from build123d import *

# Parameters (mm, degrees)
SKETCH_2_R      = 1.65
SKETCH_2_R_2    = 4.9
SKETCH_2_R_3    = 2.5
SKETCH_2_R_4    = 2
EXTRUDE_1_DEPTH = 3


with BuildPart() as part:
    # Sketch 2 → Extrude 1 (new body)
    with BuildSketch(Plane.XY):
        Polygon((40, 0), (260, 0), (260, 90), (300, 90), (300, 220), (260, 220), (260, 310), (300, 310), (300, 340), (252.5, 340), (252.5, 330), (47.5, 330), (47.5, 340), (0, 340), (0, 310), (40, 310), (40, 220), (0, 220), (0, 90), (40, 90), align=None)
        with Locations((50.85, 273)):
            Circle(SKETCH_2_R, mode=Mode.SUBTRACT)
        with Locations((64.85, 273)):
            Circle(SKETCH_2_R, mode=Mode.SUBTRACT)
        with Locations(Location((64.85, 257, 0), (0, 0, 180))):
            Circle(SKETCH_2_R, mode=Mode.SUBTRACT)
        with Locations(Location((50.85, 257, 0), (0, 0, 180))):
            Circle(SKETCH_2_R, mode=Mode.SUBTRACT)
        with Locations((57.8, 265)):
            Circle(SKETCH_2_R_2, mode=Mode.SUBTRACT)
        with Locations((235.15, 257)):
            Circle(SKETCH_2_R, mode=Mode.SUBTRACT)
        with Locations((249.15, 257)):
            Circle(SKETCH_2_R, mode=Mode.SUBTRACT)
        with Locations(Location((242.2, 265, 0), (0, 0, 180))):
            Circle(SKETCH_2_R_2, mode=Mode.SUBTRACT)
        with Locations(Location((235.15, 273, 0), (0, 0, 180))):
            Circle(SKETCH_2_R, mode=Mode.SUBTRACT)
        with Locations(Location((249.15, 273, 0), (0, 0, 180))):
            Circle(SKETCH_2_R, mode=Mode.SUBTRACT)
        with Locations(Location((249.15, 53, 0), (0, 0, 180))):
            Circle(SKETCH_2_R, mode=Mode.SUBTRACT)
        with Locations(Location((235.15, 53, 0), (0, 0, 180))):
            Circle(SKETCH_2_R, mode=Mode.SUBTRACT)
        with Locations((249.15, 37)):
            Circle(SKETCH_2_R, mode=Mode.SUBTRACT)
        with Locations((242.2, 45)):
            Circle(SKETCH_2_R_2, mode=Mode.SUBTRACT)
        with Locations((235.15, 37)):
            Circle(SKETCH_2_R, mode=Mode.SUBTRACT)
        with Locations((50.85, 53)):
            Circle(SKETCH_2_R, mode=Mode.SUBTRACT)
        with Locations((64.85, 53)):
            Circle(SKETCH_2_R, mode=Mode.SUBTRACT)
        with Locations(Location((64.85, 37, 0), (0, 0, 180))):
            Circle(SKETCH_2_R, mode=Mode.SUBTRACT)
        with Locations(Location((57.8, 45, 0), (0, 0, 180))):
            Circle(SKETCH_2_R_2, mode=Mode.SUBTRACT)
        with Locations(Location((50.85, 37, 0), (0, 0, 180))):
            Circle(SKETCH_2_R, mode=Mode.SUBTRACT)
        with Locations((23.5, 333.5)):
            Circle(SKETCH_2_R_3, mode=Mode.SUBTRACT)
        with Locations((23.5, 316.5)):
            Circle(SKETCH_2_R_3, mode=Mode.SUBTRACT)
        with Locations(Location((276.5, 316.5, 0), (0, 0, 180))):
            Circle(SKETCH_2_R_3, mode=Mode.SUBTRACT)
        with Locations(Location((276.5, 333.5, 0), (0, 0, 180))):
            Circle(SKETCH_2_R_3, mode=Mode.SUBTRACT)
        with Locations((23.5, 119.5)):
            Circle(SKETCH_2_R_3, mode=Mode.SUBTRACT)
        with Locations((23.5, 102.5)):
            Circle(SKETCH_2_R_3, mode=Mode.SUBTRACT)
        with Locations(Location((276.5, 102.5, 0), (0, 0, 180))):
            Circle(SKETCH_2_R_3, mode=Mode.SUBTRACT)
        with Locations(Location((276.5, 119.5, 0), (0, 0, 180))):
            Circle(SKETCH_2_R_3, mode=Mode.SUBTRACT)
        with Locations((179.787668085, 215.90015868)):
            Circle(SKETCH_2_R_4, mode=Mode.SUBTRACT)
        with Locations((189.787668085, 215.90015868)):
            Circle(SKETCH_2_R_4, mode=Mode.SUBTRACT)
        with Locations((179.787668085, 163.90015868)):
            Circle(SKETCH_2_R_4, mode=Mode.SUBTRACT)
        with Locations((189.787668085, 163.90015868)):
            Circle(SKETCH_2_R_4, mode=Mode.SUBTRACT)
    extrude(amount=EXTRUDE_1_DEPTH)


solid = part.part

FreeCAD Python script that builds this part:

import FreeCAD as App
import Part
import Sketcher
from FreeCAD import Vector

doc = App.newDocument("Part")
body = doc.addObject("PartDesign::Body", "Body")

# Sketch on XY plane
sketch1 = body.newObject("Sketcher::SketchObject", "Sketch")
sketch1.AttachmentSupport = (doc.getObject("XY_Plane"), [""])
sketch1.MapMode = "FlatFace"
sketch1.addGeometry(Part.LineSegment(Vector(40, 0, 0), Vector(260, 0, 0)), False)
sketch1.addGeometry(Part.LineSegment(Vector(260, 0, 0), Vector(260, 90, 0)), False)
sketch1.addGeometry(Part.LineSegment(Vector(260, 90, 0), Vector(300, 90, 0)), False)
sketch1.addGeometry(Part.LineSegment(Vector(300, 90, 0), Vector(300, 220, 0)), False)
sketch1.addGeometry(Part.LineSegment(Vector(300, 220, 0), Vector(260, 220, 0)), False)
sketch1.addGeometry(Part.LineSegment(Vector(260, 220, 0), Vector(260, 310, 0)), False)
sketch1.addGeometry(Part.LineSegment(Vector(260, 310, 0), Vector(300, 310, 0)), False)
sketch1.addGeometry(Part.LineSegment(Vector(300, 310, 0), Vector(300, 340, 0)), False)
sketch1.addGeometry(Part.LineSegment(Vector(300, 340, 0), Vector(252.5, 340, 0)), False)
sketch1.addGeometry(Part.LineSegment(Vector(252.5, 340, 0), Vector(252.5, 330, 0)), False)
sketch1.addGeometry(Part.LineSegment(Vector(252.5, 330, 0), Vector(47.5, 330, 0)), False)
sketch1.addGeometry(Part.LineSegment(Vector(47.5, 330, 0), Vector(47.5, 340, 0)), False)
sketch1.addGeometry(Part.LineSegment(Vector(47.5, 340, 0), Vector(0, 340, 0)), False)
sketch1.addGeometry(Part.LineSegment(Vector(0, 340, 0), Vector(0, 310, 0)), False)
sketch1.addGeometry(Part.LineSegment(Vector(0, 310, 0), Vector(40, 310, 0)), False)
sketch1.addGeometry(Part.LineSegment(Vector(40, 310, 0), Vector(40, 220, 0)), False)
sketch1.addGeometry(Part.LineSegment(Vector(40, 220, 0), Vector(0, 220, 0)), False)
sketch1.addGeometry(Part.LineSegment(Vector(0, 220, 0), Vector(0, 90, 0)), False)
sketch1.addGeometry(Part.LineSegment(Vector(0, 90, 0), Vector(40, 90, 0)), False)
sketch1.addGeometry(Part.LineSegment(Vector(40, 90, 0), Vector(40, 0, 0)), False)
sketch1.addGeometry(Part.Circle(Vector(50.85, 37, 0), Vector(0, 0, 1), 1.65), False)
sketch1.addGeometry(Part.Circle(Vector(50.85, 53, 0), Vector(0, 0, 1), 1.65), False)
sketch1.addGeometry(Part.Circle(Vector(64.85, 37, 0), Vector(0, 0, 1), 1.65), False)
sketch1.addGeometry(Part.Circle(Vector(57.8, 45, 0), Vector(0, 0, 1), 4.9), False)
sketch1.addGeometry(Part.Circle(Vector(64.85, 53, 0), Vector(0, 0, 1), 1.65), False)
sketch1.addGeometry(Part.Circle(Vector(23.5, 102.5, 0), Vector(0, 0, 1), 2.5), False)
sketch1.addGeometry(Part.Circle(Vector(23.5, 119.5, 0), Vector(0, 0, 1), 2.5), False)
sketch1.addGeometry(Part.Circle(Vector(235.15, 37, 0), Vector(0, 0, 1), 1.65), False)
sketch1.addGeometry(Part.Circle(Vector(235.15, 53, 0), Vector(0, 0, 1), 1.65), False)
sketch1.addGeometry(Part.Circle(Vector(242.2, 45, 0), Vector(0, 0, 1), 4.9), False)
sketch1.addGeometry(Part.Circle(Vector(249.15, 37, 0), Vector(0, 0, 1), 1.65), False)
sketch1.addGeometry(Part.Circle(Vector(249.15, 53, 0), Vector(0, 0, 1), 1.65), False)
sketch1.addGeometry(Part.Circle(Vector(276.5, 102.5, 0), Vector(0, 0, 1), 2.5), False)
sketch1.addGeometry(Part.Circle(Vector(179.787668, 163.900159, 0), Vector(0, 0, 1), 2), False)
sketch1.addGeometry(Part.Circle(Vector(189.787668, 163.900159, 0), Vector(0, 0, 1), 2), False)
sketch1.addGeometry(Part.Circle(Vector(276.5, 119.5, 0), Vector(0, 0, 1), 2.5), False)
sketch1.addGeometry(Part.Circle(Vector(50.85, 257, 0), Vector(0, 0, 1), 1.65), False)
sketch1.addGeometry(Part.Circle(Vector(64.85, 257, 0), Vector(0, 0, 1), 1.65), False)
sketch1.addGeometry(Part.Circle(Vector(50.85, 273, 0), Vector(0, 0, 1), 1.65), False)
sketch1.addGeometry(Part.Circle(Vector(57.8, 265, 0), Vector(0, 0, 1), 4.9), False)
sketch1.addGeometry(Part.Circle(Vector(64.85, 273, 0), Vector(0, 0, 1), 1.65), False)
sketch1.addGeometry(Part.Circle(Vector(23.5, 316.5, 0), Vector(0, 0, 1), 2.5), False)
sketch1.addGeometry(Part.Circle(Vector(23.5, 333.5, 0), Vector(0, 0, 1), 2.5), False)
sketch1.addGeometry(Part.Circle(Vector(179.787668, 215.900159, 0), Vector(0, 0, 1), 2), False)
sketch1.addGeometry(Part.Circle(Vector(189.787668, 215.900159, 0), Vector(0, 0, 1), 2), False)
sketch1.addGeometry(Part.Circle(Vector(235.15, 257, 0), Vector(0, 0, 1), 1.65), False)
sketch1.addGeometry(Part.Circle(Vector(249.15, 257, 0), Vector(0, 0, 1), 1.65), False)
sketch1.addGeometry(Part.Circle(Vector(242.2, 265, 0), Vector(0, 0, 1), 4.9), False)
sketch1.addGeometry(Part.Circle(Vector(235.15, 273, 0), Vector(0, 0, 1), 1.65), False)
sketch1.addGeometry(Part.Circle(Vector(249.15, 273, 0), Vector(0, 0, 1), 1.65), False)
sketch1.addGeometry(Part.Circle(Vector(276.5, 316.5, 0), Vector(0, 0, 1), 2.5), False)
sketch1.addGeometry(Part.Circle(Vector(276.5, 333.5, 0), Vector(0, 0, 1), 2.5), False)
sketch1.addConstraint(Sketcher.Constraint("Coincident", 0, 2, 1, 1))
sketch1.addConstraint(Sketcher.Constraint("Coincident", 1, 2, 2, 1))
sketch1.addConstraint(Sketcher.Constraint("Coincident", 2, 2, 3, 1))
sketch1.addConstraint(Sketcher.Constraint("Coincident", 3, 2, 4, 1))
sketch1.addConstraint(Sketcher.Constraint("Coincident", 4, 2, 5, 1))
sketch1.addConstraint(Sketcher.Constraint("Coincident", 5, 2, 6, 1))
sketch1.addConstraint(Sketcher.Constraint("Coincident", 6, 2, 7, 1))
sketch1.addConstraint(Sketcher.Constraint("Coincident", 7, 2, 8, 1))
sketch1.addConstraint(Sketcher.Constraint("Coincident", 8, 2, 9, 1))
sketch1.addConstraint(Sketcher.Constraint("Coincident", 9, 2, 10, 1))
sketch1.addConstraint(Sketcher.Constraint("Coincident", 10, 2, 11, 1))
sketch1.addConstraint(Sketcher.Constraint("Coincident", 11, 2, 12, 1))
sketch1.addConstraint(Sketcher.Constraint("Coincident", 12, 2, 13, 1))
sketch1.addConstraint(Sketcher.Constraint("Coincident", 13, 2, 14, 1))
sketch1.addConstraint(Sketcher.Constraint("Coincident", 14, 2, 15, 1))
sketch1.addConstraint(Sketcher.Constraint("Coincident", 15, 2, 16, 1))
sketch1.addConstraint(Sketcher.Constraint("Coincident", 16, 2, 17, 1))
sketch1.addConstraint(Sketcher.Constraint("Coincident", 17, 2, 18, 1))
sketch1.addConstraint(Sketcher.Constraint("Coincident", 18, 2, 19, 1))
sketch1.addConstraint(Sketcher.Constraint("Coincident", 19, 2, 0, 1))
sketch1.addConstraint(Sketcher.Constraint("Horizontal", 0))
sketch1.addConstraint(Sketcher.Constraint("Vertical", 1))
sketch1.addConstraint(Sketcher.Constraint("Horizontal", 2))
sketch1.addConstraint(Sketcher.Constraint("Vertical", 3))
sketch1.addConstraint(Sketcher.Constraint("Horizontal", 4))
sketch1.addConstraint(Sketcher.Constraint("Vertical", 5))
sketch1.addConstraint(Sketcher.Constraint("Horizontal", 6))
sketch1.addConstraint(Sketcher.Constraint("Vertical", 7))
sketch1.addConstraint(Sketcher.Constraint("Horizontal", 8))
sketch1.addConstraint(Sketcher.Constraint("Vertical", 9))
sketch1.addConstraint(Sketcher.Constraint("Horizontal", 10))
sketch1.addConstraint(Sketcher.Constraint("Vertical", 11))
sketch1.addConstraint(Sketcher.Constraint("Horizontal", 12))
sketch1.addConstraint(Sketcher.Constraint("Vertical", 13))
sketch1.addConstraint(Sketcher.Constraint("Horizontal", 14))
sketch1.addConstraint(Sketcher.Constraint("Vertical", 15))
sketch1.addConstraint(Sketcher.Constraint("Horizontal", 16))
sketch1.addConstraint(Sketcher.Constraint("Vertical", 17))
sketch1.addConstraint(Sketcher.Constraint("Horizontal", 18))
sketch1.addConstraint(Sketcher.Constraint("Vertical", 19))
sketch1.addConstraint(Sketcher.Constraint("Equal", 20, 21))
sketch1.addConstraint(Sketcher.Constraint("Equal", 21, 22))
sketch1.addConstraint(Sketcher.Constraint("Equal", 22, 24))
sketch1.addConstraint(Sketcher.Constraint("Equal", 25, 26))
sketch1.addConstraint(Sketcher.Constraint("Equal", 24, 27))
sketch1.addConstraint(Sketcher.Constraint("Equal", 27, 28))
sketch1.addConstraint(Sketcher.Constraint("Equal", 23, 29))
sketch1.addConstraint(Sketcher.Constraint("Equal", 28, 30))
sketch1.addConstraint(Sketcher.Constraint("Equal", 30, 31))
sketch1.addConstraint(Sketcher.Constraint("Equal", 26, 32))
sketch1.addConstraint(Sketcher.Constraint("Equal", 33, 34))
sketch1.addConstraint(Sketcher.Constraint("Equal", 32, 35))
sketch1.addConstraint(Sketcher.Constraint("Equal", 31, 36))
sketch1.addConstraint(Sketcher.Constraint("Equal", 36, 37))
sketch1.addConstraint(Sketcher.Constraint("Equal", 37, 38))
sketch1.addConstraint(Sketcher.Constraint("Equal", 29, 39))
sketch1.addConstraint(Sketcher.Constraint("Equal", 38, 40))
sketch1.addConstraint(Sketcher.Constraint("Equal", 35, 41))
sketch1.addConstraint(Sketcher.Constraint("Equal", 41, 42))
sketch1.addConstraint(Sketcher.Constraint("Equal", 34, 43))
sketch1.addConstraint(Sketcher.Constraint("Equal", 43, 44))
sketch1.addConstraint(Sketcher.Constraint("Equal", 40, 45))
sketch1.addConstraint(Sketcher.Constraint("Equal", 45, 46))
sketch1.addConstraint(Sketcher.Constraint("Equal", 39, 47))
sketch1.addConstraint(Sketcher.Constraint("Equal", 46, 48))
sketch1.addConstraint(Sketcher.Constraint("Equal", 48, 49))
sketch1.addConstraint(Sketcher.Constraint("Equal", 42, 50))
sketch1.addConstraint(Sketcher.Constraint("Equal", 50, 51))
sketch1.addConstraint(Sketcher.Constraint("PointOnObject", 0, 2, -1))
sketch1.addConstraint(Sketcher.Constraint("PointOnObject", 12, 2, -2))
sketch1.addConstraint(Sketcher.Constraint("PointOnObject", 16, 2, -2))
sketch1.addConstraint(Sketcher.Constraint("Horizontal", 20, 3, 22, 3))
sketch1.addConstraint(Sketcher.Constraint("Horizontal", 21, 3, 24, 3))
sketch1.addConstraint(Sketcher.Constraint("Horizontal", 22, 3, 27, 3))
sketch1.addConstraint(Sketcher.Constraint("Horizontal", 24, 3, 28, 3))
sketch1.addConstraint(Sketcher.Constraint("Horizontal", 23, 3, 29, 3))
sketch1.addConstraint(Sketcher.Constraint("Horizontal", 27, 3, 30, 3))
sketch1.addConstraint(Sketcher.Constraint("Horizontal", 28, 3, 31, 3))
sketch1.addConstraint(Sketcher.Constraint("Horizontal", 25, 3, 32, 3))
sketch1.addConstraint(Sketcher.Constraint("Horizontal", 33, 3, 34, 3))
sketch1.addConstraint(Sketcher.Constraint("Horizontal", 26, 3, 35, 3))
sketch1.addConstraint(Sketcher.Constraint("Horizontal", 36, 3, 37, 3))
sketch1.addConstraint(Sketcher.Constraint("Horizontal", 38, 3, 40, 3))
sketch1.addConstraint(Sketcher.Constraint("Horizontal", 43, 3, 44, 3))
sketch1.addConstraint(Sketcher.Constraint("Horizontal", 37, 3, 45, 3))
sketch1.addConstraint(Sketcher.Constraint("Horizontal", 45, 3, 46, 3))
sketch1.addConstraint(Sketcher.Constraint("Horizontal", 39, 3, 47, 3))
sketch1.addConstraint(Sketcher.Constraint("Horizontal", 40, 3, 48, 3))
sketch1.addConstraint(Sketcher.Constraint("Horizontal", 48, 3, 49, 3))
sketch1.addConstraint(Sketcher.Constraint("Horizontal", 41, 3, 50, 3))
sketch1.addConstraint(Sketcher.Constraint("Horizontal", 42, 3, 51, 3))
sketch1.addConstraint(Sketcher.Constraint("Horizontal", 8, 2, 11, 2))
sketch1.addConstraint(Sketcher.Constraint("Horizontal", 6, 2, 13, 2))
sketch1.addConstraint(Sketcher.Constraint("Horizontal", 4, 2, 15, 2))
sketch1.addConstraint(Sketcher.Constraint("Horizontal", 2, 2, 17, 2))
sketch1.addConstraint(Sketcher.Constraint("Vertical", 20, 3, 21, 3))
sketch1.addConstraint(Sketcher.Constraint("Vertical", 22, 3, 24, 3))
sketch1.addConstraint(Sketcher.Constraint("Vertical", 25, 3, 26, 3))
sketch1.addConstraint(Sketcher.Constraint("Vertical", 27, 3, 28, 3))
sketch1.addConstraint(Sketcher.Constraint("Vertical", 30, 3, 31, 3))
sketch1.addConstraint(Sketcher.Constraint("Vertical", 32, 3, 35, 3))
sketch1.addConstraint(Sketcher.Constraint("Vertical", 21, 3, 36, 3))
sketch1.addConstraint(Sketcher.Constraint("Vertical", 24, 3, 37, 3))
sketch1.addConstraint(Sketcher.Constraint("Vertical", 36, 3, 38, 3))
sketch1.addConstraint(Sketcher.Constraint("Vertical", 23, 3, 39, 3))
sketch1.addConstraint(Sketcher.Constraint("Vertical", 37, 3, 40, 3))
sketch1.addConstraint(Sketcher.Constraint("Vertical", 26, 3, 41, 3))
sketch1.addConstraint(Sketcher.Constraint("Vertical", 41, 3, 42, 3))
sketch1.addConstraint(Sketcher.Constraint("Vertical", 33, 3, 43, 3))
sketch1.addConstraint(Sketcher.Constraint("Vertical", 34, 3, 44, 3))
sketch1.addConstraint(Sketcher.Constraint("Vertical", 28, 3, 45, 3))
sketch1.addConstraint(Sketcher.Constraint("Vertical", 31, 3, 46, 3))
sketch1.addConstraint(Sketcher.Constraint("Vertical", 29, 3, 47, 3))
sketch1.addConstraint(Sketcher.Constraint("Vertical", 45, 3, 48, 3))
sketch1.addConstraint(Sketcher.Constraint("Vertical", 46, 3, 49, 3))
sketch1.addConstraint(Sketcher.Constraint("Vertical", 35, 3, 50, 3))
sketch1.addConstraint(Sketcher.Constraint("Vertical", 50, 3, 51, 3))
sketch1.addConstraint(Sketcher.Constraint("Vertical", 1, 2, 4, 2))
sketch1.addConstraint(Sketcher.Constraint("Vertical", 3, 2, 6, 2))
sketch1.addConstraint(Sketcher.Constraint("Vertical", 15, 2, 18, 2))
sketch1.addConstraint(Sketcher.Constraint("Equal", 8, 12))
sketch1.addConstraint(Sketcher.Constraint("Equal", 6, 14))
sketch1.addConstraint(Sketcher.Constraint("Equal", 1, 5))
sketch1.addConstraint(Sketcher.Constraint("Diameter", 25, 5.0))
sketch1.addConstraint(Sketcher.Constraint("Diameter", 33, 4.0))
sketch1.addConstraint(Sketcher.Constraint("Diameter", 20, 3.3))
sketch1.addConstraint(Sketcher.Constraint("Diameter", 23, 9.8))
sketch1.addConstraint(Sketcher.Constraint("DistanceX", 0, 1, 0, 2, 220.0))
sketch1.addConstraint(Sketcher.Constraint("DistanceX", 2, 1, 2, 2, 40.0))
sketch1.addConstraint(Sketcher.Constraint("DistanceX", 10, 2, 10, 1, 205.0))
sketch1.addConstraint(Sketcher.Constraint("DistanceY", 1, 1, 1, 2, 90.0))
sketch1.addConstraint(Sketcher.Constraint("DistanceY", 3, 1, 3, 2, 130.0))
sketch1.addConstraint(Sketcher.Constraint("DistanceY", 7, 1, 7, 2, 30.0))
sketch1.addConstraint(Sketcher.Constraint("DistanceY", 9, 2, 9, 1, 10.0))
sketch1.addConstraint(Sketcher.Constraint("DistanceY", -1, 1, 20, 3, 37.0))
sketch1.addConstraint(Sketcher.Constraint("DistanceY", -1, 1, 21, 3, 53.0))
sketch1.addConstraint(Sketcher.Constraint("DistanceY", -1, 1, 23, 3, 45.0))
sketch1.addConstraint(Sketcher.Constraint("DistanceY", -1, 1, 36, 3, 257.0))
sketch1.addConstraint(Sketcher.Constraint("DistanceY", -1, 1, 38, 3, 273.0))
sketch1.addConstraint(Sketcher.Constraint("DistanceY", -1, 1, 39, 3, 265.0))
sketch1.addConstraint(Sketcher.Constraint("DistanceX", 20, 3, 22, 3, 14.0))
sketch1.addConstraint(Sketcher.Constraint("DistanceY", 25, 3, 26, 3, 17.0))
sketch1.addConstraint(Sketcher.Constraint("DistanceX", 27, 3, 30, 3, 14.0))
sketch1.addConstraint(Sketcher.Constraint("DistanceX", 33, 3, 34, 3, 10.0))
sketch1.addConstraint(Sketcher.Constraint("DistanceY", 41, 3, 42, 3, 17.0))
sketch1.addConstraint(Sketcher.Constraint("DistanceY", 33, 3, 43, 3, 52.0))
sketch1.addConstraint(Sketcher.Constraint("DistanceX", 8, 2, 51, 3, 24.0))
sketch1.addConstraint(Sketcher.Constraint("DistanceX", 42, 3, 10, 2, 24.0))
sketch1.addConstraint(Sketcher.Constraint("DistanceX", -1, 1, 23, 3, 57.8))
sketch1.addConstraint(Sketcher.Constraint("DistanceY", -1, 1, 25, 3, 102.5))
sketch1.addConstraint(Sketcher.Constraint("DistanceX", -1, 1, 29, 3, 242.2))
sketch1.addConstraint(Sketcher.Constraint("DistanceY", -1, 1, 41, 3, 316.5))
sketch1.addConstraint(Sketcher.Constraint("DistanceX", 22, 3, 27, 3, 170.3))
sketch1.addConstraint(Sketcher.Constraint("DistanceX", -1, 1, 20, 3, 50.85))
sketch1.addConstraint(Sketcher.Constraint("DistanceX", -1, 1, 33, 3, 179.787668))
sketch1.addConstraint(Sketcher.Constraint("DistanceY", -1, 1, 33, 3, 163.900159))
pad1 = body.newObject("PartDesign::Pad", "Pad")
pad1.Profile = sketch1
pad1.Length = 3

doc.recompute()
